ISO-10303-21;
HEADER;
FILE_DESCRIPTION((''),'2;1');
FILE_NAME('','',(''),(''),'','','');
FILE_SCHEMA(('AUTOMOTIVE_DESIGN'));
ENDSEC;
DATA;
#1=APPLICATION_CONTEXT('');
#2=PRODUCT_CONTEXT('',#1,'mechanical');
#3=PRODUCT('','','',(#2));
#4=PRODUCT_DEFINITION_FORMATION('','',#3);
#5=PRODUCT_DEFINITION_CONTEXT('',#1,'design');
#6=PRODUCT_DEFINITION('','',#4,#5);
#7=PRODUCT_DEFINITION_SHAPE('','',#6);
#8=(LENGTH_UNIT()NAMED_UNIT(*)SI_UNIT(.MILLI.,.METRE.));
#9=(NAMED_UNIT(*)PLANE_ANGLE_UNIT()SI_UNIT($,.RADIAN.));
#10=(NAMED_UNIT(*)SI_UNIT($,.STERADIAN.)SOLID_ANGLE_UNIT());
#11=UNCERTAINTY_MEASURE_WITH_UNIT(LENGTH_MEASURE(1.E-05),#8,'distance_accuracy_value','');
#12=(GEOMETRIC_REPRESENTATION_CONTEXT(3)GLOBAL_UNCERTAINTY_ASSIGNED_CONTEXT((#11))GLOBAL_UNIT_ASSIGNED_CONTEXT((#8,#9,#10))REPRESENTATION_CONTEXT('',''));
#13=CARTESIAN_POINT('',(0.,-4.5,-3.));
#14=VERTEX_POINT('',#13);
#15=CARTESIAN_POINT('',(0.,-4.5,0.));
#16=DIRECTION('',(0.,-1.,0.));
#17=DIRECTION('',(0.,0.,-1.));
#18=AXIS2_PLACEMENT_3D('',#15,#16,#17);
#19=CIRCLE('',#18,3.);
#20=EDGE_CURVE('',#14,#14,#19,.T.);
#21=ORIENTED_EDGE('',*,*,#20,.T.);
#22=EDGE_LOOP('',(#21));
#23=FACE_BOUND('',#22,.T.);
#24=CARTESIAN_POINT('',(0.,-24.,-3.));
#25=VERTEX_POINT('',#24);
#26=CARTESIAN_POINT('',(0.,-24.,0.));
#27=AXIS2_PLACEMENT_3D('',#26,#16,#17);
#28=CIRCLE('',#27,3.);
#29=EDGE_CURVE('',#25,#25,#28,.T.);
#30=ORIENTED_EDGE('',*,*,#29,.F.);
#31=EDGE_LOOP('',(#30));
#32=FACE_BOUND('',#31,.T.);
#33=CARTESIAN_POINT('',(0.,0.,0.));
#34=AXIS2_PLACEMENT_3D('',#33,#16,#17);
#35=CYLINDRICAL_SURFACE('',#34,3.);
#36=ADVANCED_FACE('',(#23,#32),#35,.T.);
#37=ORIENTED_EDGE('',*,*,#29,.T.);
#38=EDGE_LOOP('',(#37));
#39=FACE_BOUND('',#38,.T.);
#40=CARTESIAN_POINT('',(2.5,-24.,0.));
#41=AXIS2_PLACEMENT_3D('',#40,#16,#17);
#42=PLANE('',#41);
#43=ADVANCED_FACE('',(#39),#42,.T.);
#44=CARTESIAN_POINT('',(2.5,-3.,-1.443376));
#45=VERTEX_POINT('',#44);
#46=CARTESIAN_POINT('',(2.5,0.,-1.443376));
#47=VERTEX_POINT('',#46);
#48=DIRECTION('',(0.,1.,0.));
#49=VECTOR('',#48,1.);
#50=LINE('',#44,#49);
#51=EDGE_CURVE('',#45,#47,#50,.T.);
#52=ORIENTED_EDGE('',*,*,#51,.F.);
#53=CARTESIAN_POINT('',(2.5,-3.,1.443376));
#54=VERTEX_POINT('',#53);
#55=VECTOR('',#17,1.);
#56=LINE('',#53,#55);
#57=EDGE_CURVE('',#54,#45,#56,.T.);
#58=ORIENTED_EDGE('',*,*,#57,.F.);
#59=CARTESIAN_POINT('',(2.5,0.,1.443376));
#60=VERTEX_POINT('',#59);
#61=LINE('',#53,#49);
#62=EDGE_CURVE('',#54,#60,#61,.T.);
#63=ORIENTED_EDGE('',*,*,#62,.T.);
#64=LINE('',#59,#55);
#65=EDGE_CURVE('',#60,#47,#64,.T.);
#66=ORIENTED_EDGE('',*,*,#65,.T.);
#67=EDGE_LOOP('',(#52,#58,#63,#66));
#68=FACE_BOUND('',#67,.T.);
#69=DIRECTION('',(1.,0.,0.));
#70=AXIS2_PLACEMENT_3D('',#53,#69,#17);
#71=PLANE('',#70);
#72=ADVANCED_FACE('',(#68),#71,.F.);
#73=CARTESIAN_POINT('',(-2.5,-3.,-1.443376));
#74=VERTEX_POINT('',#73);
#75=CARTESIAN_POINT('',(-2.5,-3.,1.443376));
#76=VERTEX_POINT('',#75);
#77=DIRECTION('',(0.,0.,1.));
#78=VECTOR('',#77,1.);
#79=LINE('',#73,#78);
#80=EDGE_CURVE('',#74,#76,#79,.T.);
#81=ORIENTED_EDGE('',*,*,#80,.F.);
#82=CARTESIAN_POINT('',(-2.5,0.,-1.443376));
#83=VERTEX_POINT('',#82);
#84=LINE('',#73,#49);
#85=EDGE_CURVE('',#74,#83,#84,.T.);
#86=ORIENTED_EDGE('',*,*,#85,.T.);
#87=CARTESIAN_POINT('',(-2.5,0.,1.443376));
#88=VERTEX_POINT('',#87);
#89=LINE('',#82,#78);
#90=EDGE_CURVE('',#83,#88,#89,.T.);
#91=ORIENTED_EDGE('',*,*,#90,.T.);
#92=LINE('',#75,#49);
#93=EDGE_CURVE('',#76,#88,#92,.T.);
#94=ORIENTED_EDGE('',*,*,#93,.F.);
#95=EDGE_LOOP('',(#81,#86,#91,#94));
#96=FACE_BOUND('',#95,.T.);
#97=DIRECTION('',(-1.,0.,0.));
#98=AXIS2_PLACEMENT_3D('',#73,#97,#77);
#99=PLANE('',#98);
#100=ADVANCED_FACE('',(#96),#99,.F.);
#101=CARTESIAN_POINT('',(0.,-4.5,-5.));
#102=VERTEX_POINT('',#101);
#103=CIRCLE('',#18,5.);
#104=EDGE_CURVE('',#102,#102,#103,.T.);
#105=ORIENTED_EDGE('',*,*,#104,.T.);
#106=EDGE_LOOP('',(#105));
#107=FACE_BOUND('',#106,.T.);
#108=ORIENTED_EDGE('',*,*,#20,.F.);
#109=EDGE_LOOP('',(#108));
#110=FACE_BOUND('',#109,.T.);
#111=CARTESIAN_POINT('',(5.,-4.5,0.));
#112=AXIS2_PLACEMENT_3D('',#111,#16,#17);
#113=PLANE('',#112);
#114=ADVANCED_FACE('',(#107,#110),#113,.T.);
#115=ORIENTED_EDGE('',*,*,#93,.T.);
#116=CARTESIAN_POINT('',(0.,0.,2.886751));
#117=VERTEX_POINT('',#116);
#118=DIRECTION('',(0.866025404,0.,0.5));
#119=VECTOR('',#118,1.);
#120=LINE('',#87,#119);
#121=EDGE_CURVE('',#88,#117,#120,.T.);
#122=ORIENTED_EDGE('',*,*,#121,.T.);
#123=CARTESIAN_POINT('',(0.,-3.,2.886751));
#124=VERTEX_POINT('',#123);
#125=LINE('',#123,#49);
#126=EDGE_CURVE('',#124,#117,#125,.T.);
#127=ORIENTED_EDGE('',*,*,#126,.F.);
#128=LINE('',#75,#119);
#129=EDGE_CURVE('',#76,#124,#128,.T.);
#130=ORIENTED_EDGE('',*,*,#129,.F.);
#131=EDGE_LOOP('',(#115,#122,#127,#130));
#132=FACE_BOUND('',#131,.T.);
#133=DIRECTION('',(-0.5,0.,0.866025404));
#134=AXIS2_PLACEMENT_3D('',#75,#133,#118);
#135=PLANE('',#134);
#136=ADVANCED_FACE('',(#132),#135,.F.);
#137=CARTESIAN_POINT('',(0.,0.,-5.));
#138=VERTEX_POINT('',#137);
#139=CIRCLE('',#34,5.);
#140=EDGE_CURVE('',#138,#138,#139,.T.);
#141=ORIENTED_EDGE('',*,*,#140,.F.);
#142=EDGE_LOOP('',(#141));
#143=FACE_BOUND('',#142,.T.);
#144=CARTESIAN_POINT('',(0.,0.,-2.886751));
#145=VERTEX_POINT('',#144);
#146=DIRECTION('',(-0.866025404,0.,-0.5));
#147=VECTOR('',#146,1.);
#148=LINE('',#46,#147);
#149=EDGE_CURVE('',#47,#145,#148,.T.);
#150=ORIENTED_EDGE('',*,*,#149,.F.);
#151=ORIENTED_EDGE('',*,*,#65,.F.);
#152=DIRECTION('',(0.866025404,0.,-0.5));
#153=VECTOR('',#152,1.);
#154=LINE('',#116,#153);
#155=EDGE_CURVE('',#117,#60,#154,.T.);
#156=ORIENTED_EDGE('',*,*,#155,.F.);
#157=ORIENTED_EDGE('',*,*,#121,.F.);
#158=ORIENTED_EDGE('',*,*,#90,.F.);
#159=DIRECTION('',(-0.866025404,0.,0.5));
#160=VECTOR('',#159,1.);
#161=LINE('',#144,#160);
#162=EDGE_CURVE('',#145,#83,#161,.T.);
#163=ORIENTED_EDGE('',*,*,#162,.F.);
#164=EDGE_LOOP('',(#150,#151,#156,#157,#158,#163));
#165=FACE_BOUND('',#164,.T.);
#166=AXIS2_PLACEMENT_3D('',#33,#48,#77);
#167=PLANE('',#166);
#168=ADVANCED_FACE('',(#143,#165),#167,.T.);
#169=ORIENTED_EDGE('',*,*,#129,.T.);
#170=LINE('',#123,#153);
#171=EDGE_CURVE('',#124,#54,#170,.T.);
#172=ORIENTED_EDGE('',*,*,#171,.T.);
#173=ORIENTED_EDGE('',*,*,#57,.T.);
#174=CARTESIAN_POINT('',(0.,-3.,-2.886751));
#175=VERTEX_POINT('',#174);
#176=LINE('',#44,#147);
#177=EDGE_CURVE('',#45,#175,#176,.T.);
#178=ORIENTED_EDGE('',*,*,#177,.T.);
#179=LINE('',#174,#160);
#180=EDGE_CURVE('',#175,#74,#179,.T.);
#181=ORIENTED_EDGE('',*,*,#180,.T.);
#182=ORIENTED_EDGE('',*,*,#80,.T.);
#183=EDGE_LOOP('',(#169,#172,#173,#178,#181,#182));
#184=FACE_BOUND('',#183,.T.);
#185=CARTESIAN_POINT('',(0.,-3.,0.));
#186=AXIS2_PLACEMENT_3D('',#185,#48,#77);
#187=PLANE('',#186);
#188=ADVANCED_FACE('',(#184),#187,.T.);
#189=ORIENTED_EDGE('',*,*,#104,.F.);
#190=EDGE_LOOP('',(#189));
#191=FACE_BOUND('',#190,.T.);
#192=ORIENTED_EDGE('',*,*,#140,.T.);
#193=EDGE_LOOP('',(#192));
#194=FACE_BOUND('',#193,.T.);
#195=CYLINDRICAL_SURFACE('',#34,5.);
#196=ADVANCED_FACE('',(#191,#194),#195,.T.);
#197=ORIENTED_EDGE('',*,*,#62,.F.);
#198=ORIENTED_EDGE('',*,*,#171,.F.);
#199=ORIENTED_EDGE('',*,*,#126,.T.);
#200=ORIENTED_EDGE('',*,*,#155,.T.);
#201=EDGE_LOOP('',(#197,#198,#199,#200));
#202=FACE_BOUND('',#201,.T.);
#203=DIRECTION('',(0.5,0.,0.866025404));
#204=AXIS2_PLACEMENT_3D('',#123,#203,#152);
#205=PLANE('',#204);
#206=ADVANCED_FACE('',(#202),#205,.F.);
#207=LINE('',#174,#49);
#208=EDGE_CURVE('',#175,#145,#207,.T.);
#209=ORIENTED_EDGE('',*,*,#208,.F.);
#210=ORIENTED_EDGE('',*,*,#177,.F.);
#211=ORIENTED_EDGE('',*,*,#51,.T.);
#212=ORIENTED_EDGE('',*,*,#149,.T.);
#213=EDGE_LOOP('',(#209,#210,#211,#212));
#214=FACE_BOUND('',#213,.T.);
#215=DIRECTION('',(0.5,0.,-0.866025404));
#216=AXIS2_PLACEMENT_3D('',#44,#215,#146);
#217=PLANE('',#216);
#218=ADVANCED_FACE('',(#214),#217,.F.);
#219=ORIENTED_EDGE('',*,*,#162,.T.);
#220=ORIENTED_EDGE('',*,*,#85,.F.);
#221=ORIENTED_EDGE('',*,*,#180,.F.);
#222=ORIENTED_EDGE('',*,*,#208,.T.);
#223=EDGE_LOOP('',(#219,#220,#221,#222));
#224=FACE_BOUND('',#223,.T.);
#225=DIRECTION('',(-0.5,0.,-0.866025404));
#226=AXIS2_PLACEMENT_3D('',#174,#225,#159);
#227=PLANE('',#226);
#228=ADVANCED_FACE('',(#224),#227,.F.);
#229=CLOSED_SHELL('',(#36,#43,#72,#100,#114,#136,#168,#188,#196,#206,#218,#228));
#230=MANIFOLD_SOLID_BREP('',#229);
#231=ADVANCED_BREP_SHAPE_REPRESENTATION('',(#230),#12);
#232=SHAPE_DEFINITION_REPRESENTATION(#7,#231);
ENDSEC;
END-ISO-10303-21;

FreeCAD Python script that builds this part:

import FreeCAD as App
import Part
import Sketcher
from FreeCAD import Vector
Q = App.Units.Quantity


def add_polygon(sketch, points):
    """Adds a closed chain of lines whose ends are joined by coincident constraints."""
    first, n = sketch.GeometryCount, len(points)
    for a, b in zip(points, points[1:] + points[:1]):
        sketch.addGeometry(Part.LineSegment(App.Vector(*a, 0), App.Vector(*b, 0)), False)
    for i in range(n):
        sketch.addConstraint(Sketcher.Constraint("Coincident", first + i, 2, first + (i + 1) % n, 1))

doc = App.newDocument("Part")
params = doc.addObject("Spreadsheet::Sheet", "Params")
for row, (alias, value) in enumerate([
    ("sketch1_width", "5 mm"),
    ("sketch1_width2", "3 mm"),
    ("sketch1_height", "24 mm"),
    ("sketch1_height2", "19.5 mm"),
    ("revolution_angle", "360 deg"),
    ("pocket1_length", "3 mm"),
], start=1):
    params.set(f"A{row}", alias)
    params.set(f"B{row}", "=" + value)
    params.setAlias(f"B{row}", alias)

body = doc.addObject("PartDesign::Body", "Body")

sketch1 = doc.addObject("Sketcher::SketchObject", "Sketch")
body.addObject(sketch1)
sketch1.AttachmentSupport = (doc.XY_Plane, [""])
sketch1.MapMode = "FlatFace"
add_polygon(sketch1, [(5, 0), (0, 0), (0, -24), (3, -24), (3, -4.5), (5, -4.5)])
sketch1.addConstraint(Sketcher.Constraint("Horizontal", 0))
sketch1.addConstraint(Sketcher.Constraint("Vertical", 1))
sketch1.addConstraint(Sketcher.Constraint("Horizontal", 2))
sketch1.addConstraint(Sketcher.Constraint("Vertical", 3))
sketch1.addConstraint(Sketcher.Constraint("Horizontal", 4))
sketch1.addConstraint(Sketcher.Constraint("Vertical", 5))
sketch1.addConstraint(Sketcher.Constraint("Coincident", 0, 2, -1, 1))
sketch1.addConstraint(Sketcher.Constraint("DistanceX", 0, 2, 0, 1, 5.0))
sketch1.addConstraint(Sketcher.Constraint("DistanceX", 2, 1, 2, 2, 3.0))
sketch1.addConstraint(Sketcher.Constraint("DistanceY", 1, 2, 1, 1, 24.0))
sketch1.addConstraint(Sketcher.Constraint("DistanceY", 3, 1, 3, 2, 19.5))
sketch1.setExpression("Constraints[13]", "Params.sketch1_width")
sketch1.setExpression("Constraints[14]", "Params.sketch1_width2")
sketch1.setExpression("Constraints[15]", "Params.sketch1_height")
sketch1.setExpression("Constraints[16]", "Params.sketch1_height2")
revolution = doc.addObject("PartDesign::Revolution", "Revolution")
body.addObject(revolution)
revolution.Profile = sketch1
revolution.ReferenceAxis = (sketch1, ["V_Axis"])
revolution.setExpression("Angle", "Params.revolution_angle")

sketch2 = doc.addObject("Sketcher::SketchObject", "Sketch001")
body.addObject(sketch2)
sketch2.AttachmentSupport = (doc.XZ_Plane, [""])
sketch2.MapMode = "FlatFace"
add_polygon(sketch2, [(0, -2.886751), (-2.5, -1.443376), (-2.5, 1.443376), (0, 2.886751), (2.5, 1.443376), (2.5, -1.443376)])
sketch2.addConstraint(Sketcher.Constraint("Vertical", 1))
sketch2.addConstraint(Sketcher.Constraint("Vertical", 4))
sketch2.addConstraint(Sketcher.Constraint("Symmetric", 0, 2, 3, 2, -1, 1))
sketch2.addConstraint(Sketcher.Constraint("Symmetric", 2, 2, 5, 2, -1, 1))
sketch2.addConstraint(Sketcher.Constraint("PointOnObject", 2, 2, -2))
sketch2.addConstraint(Sketcher.Constraint("Parallel", 2, 5))
sketch2.addConstraint(Sketcher.Constraint("Horizontal", 1, 2, 3, 2))
sketch2.addConstraint(Sketcher.Constraint("Angle", 0, Q("150 deg")))
sketch2.addConstraint(Sketcher.Constraint("DistanceX", 1, 2, 3, 2, 5.0))
sketch2.addConstraint(Sketcher.Constraint("DistanceY", 1, 1, 1, 2, 2.886751))
pocket1 = doc.addObject("PartDesign::Pocket", "Pocket")
body.addObject(pocket1)
pocket1.Profile = sketch2
pocket1.setExpression("Length", "Params.pocket1_length")
pocket1.Reversed = True

doc.recompute()
